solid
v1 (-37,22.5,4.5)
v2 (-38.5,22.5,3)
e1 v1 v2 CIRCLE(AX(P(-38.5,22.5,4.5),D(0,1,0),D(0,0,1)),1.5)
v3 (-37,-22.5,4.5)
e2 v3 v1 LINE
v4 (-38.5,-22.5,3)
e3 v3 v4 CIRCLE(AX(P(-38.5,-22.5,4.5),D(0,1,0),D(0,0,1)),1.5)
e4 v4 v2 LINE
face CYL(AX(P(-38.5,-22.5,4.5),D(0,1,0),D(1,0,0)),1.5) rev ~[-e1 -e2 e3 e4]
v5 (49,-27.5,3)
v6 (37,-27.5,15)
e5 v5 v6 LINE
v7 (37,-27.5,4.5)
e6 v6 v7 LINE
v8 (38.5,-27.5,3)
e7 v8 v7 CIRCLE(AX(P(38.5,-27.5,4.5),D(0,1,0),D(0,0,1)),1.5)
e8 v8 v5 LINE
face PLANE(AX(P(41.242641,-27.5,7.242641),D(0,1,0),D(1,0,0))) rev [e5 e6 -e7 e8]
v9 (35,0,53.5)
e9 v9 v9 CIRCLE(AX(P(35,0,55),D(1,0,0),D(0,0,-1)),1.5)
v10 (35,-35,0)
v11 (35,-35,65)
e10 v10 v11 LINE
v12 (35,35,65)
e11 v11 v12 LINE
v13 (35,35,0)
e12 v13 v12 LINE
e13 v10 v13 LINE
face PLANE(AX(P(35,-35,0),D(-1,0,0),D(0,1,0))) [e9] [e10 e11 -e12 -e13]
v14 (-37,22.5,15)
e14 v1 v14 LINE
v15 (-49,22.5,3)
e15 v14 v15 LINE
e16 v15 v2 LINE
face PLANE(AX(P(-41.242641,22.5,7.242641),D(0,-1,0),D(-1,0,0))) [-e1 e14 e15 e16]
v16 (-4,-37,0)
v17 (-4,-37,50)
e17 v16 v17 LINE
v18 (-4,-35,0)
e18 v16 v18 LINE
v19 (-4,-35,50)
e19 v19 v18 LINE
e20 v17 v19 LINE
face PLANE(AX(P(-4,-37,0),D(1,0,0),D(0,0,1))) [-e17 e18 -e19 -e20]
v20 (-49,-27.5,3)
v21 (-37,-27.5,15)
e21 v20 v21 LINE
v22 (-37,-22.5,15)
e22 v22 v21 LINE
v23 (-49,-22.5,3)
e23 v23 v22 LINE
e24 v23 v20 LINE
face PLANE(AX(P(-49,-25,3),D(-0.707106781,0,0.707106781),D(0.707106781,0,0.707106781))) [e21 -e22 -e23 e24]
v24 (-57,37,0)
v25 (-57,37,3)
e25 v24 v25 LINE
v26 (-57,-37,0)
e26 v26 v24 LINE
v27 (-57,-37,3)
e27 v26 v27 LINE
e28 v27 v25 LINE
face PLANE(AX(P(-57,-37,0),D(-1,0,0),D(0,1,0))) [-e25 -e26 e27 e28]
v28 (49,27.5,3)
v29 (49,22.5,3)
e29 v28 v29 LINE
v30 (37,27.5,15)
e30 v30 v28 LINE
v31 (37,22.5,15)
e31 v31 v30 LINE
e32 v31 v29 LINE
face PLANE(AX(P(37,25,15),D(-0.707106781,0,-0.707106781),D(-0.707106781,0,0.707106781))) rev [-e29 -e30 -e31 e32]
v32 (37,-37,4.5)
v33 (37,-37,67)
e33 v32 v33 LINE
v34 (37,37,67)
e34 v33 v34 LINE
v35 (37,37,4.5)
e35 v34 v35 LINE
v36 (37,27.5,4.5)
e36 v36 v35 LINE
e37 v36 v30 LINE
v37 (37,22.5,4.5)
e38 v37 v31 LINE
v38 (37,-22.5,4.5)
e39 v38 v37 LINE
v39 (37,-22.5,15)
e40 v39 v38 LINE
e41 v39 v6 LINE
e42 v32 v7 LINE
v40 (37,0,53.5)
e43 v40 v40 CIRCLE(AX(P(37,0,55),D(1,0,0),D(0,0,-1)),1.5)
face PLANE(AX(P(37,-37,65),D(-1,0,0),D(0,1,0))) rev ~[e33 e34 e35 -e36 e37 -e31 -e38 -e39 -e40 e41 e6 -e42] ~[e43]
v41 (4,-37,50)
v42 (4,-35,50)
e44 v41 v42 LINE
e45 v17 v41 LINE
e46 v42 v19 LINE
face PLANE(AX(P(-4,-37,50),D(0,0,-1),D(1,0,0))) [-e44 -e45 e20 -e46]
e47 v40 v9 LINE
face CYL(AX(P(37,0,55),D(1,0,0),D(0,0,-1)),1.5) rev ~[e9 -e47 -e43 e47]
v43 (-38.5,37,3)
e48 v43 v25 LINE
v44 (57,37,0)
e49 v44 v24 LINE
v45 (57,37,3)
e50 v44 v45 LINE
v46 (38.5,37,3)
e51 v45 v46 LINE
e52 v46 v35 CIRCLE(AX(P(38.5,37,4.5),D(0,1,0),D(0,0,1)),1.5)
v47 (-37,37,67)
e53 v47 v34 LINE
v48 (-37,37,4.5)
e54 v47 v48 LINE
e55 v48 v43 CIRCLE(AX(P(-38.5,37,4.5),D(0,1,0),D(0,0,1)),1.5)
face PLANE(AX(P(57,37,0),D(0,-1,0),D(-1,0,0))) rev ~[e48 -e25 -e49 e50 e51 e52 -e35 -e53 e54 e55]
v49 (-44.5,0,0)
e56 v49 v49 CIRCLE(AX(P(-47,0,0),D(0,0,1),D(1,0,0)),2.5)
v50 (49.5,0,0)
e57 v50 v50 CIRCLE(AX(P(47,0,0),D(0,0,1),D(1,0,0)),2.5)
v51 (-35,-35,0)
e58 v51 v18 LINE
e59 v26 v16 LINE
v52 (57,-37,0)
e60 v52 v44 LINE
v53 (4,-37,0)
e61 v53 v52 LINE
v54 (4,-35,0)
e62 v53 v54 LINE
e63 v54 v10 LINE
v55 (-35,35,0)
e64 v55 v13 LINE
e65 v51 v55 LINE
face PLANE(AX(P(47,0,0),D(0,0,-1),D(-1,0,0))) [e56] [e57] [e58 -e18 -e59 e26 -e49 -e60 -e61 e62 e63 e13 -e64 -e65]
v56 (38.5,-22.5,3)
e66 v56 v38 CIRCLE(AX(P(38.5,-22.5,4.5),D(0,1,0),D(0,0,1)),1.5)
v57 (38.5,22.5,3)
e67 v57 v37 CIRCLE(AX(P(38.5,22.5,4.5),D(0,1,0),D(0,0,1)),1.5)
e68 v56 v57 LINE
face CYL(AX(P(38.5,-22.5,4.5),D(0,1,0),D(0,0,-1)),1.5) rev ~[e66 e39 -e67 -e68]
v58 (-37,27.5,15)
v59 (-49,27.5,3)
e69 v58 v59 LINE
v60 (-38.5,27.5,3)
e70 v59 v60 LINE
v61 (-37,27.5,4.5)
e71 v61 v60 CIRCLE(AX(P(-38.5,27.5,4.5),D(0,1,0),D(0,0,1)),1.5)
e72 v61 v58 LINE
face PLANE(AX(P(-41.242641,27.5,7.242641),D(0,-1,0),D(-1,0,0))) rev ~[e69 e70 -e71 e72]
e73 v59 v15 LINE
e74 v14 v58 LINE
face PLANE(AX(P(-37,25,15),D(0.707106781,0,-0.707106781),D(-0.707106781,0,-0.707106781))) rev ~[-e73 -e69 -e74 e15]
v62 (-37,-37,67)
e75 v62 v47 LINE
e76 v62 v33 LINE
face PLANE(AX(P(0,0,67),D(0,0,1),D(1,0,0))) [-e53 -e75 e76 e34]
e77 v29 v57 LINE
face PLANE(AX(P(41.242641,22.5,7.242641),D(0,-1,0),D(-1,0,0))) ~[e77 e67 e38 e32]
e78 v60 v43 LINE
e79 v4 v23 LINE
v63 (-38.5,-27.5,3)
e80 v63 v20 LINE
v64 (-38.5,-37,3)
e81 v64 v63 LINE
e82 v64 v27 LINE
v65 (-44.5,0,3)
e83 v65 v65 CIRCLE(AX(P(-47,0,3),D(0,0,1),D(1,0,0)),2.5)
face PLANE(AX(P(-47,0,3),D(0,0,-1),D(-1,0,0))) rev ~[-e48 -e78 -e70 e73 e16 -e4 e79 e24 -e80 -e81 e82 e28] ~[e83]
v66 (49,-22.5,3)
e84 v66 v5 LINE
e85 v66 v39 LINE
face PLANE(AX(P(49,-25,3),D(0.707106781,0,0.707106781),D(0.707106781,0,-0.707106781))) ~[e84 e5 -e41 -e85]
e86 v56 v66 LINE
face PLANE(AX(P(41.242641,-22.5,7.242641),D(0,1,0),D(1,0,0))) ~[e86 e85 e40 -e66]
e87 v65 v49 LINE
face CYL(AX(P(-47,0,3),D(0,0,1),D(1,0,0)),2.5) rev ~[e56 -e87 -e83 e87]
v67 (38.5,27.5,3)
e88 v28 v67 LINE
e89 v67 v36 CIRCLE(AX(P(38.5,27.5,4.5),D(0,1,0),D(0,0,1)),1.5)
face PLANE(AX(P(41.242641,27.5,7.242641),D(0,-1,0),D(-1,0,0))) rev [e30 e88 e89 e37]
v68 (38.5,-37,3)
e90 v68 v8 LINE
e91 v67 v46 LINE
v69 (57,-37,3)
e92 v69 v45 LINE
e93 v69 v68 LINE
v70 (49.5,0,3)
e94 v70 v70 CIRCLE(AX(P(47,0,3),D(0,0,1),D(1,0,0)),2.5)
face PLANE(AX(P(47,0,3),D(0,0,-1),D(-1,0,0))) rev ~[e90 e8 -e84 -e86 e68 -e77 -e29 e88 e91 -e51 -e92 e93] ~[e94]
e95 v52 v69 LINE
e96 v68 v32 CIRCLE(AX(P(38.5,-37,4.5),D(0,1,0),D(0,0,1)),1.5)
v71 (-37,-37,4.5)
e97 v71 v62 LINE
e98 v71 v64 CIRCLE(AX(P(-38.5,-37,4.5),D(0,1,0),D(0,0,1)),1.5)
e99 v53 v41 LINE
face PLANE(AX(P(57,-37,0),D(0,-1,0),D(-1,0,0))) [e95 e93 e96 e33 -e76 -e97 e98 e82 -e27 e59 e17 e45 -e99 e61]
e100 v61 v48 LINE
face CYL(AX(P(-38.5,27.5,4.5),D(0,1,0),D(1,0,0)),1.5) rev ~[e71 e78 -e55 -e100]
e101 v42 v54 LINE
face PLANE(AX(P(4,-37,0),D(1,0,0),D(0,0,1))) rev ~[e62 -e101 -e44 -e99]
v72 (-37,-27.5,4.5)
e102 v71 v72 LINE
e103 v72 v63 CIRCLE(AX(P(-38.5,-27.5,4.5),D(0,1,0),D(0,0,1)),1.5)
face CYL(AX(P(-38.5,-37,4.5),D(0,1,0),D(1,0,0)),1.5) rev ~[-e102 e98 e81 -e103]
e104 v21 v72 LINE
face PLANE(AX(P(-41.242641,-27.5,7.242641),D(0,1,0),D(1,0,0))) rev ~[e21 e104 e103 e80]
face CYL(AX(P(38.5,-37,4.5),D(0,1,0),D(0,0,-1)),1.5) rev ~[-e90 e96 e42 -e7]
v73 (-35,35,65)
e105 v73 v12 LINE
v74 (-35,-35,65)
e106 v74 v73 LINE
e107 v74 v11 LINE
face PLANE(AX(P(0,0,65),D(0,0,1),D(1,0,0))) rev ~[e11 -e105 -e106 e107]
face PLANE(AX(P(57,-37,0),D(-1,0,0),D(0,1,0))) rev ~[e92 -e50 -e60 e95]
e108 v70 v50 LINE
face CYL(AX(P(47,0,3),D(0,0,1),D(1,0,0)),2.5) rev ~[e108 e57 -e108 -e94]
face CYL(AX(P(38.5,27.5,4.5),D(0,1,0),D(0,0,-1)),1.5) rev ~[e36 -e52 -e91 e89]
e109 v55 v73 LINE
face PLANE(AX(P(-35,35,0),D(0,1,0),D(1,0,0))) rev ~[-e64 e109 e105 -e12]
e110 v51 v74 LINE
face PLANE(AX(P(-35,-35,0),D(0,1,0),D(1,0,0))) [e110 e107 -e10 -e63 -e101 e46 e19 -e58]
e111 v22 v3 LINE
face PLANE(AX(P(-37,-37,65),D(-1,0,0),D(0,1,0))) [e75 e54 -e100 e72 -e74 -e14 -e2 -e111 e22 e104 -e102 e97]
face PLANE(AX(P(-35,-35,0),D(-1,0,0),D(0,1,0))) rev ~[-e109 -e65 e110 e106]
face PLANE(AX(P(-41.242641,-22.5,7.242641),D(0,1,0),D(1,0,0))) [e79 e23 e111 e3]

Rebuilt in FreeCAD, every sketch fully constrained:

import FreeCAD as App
import Part
import Sketcher
Q = App.Units.Quantity


def edges_at(feature, points):
    """Names of the edges that pass closest to the given points."""
    edges = feature.Shape.Edges
    near = lambda p: min(range(len(edges)), key=lambda i: edges[i].distToShape(Part.Vertex(*p))[0])
    return sorted({f"Edge{near(p) + 1}" for p in points})


def add_polygon(sketch, points):
    """Adds a closed chain of lines whose ends are joined by coincident constraints."""
    first, n = sketch.GeometryCount, len(points)
    for a, b in zip(points, points[1:] + points[:1]):
        sketch.addGeometry(Part.LineSegment(App.Vector(*a, 0), App.Vector(*b, 0)), False)
    for i in range(n):
        sketch.addConstraint(Sketcher.Constraint("Coincident", first + i, 2, first + (i + 1) % n, 1))

doc = App.newDocument("Part")
body = doc.addObject("PartDesign::Body", "Body")

# Sketch on XY plane
sketch1 = body.newObject("Sketcher::SketchObject", "Sketch")
sketch1.AttachmentSupport = (doc.getObject("XY_Plane"), [""])
sketch1.MapMode = "FlatFace"
add_polygon(sketch1, [(-37, 37), (-37, -37), (37, -37), (37, 37)])  # lines 0-3
add_polygon(sketch1, [(35, -35), (-35, -35), (-35, 35), (35, 35)])  # lines 4-7
sketch1.addConstraint(Sketcher.Constraint("Vertical", 0))
sketch1.addConstraint(Sketcher.Constraint("Horizontal", 1))
sketch1.addConstraint(Sketcher.Constraint("Vertical", 2))
sketch1.addConstraint(Sketcher.Constraint("Horizontal", 3))
sketch1.addConstraint(Sketcher.Constraint("Horizontal", 4))
sketch1.addConstraint(Sketcher.Constraint("Vertical", 5))
sketch1.addConstraint(Sketcher.Constraint("Horizontal", 6))
sketch1.addConstraint(Sketcher.Constraint("Vertical", 7))
sketch1.addConstraint(Sketcher.Constraint("Symmetric", 0, 2, 2, 2, -1, 1))
sketch1.addConstraint(Sketcher.Constraint("Symmetric", 4, 2, 6, 2, -1, 1))
sketch1.addConstraint(Sketcher.Constraint("Equal", 3, 0))
sketch1.addConstraint(Sketcher.Constraint("Equal", 6, 5))
sketch1.addConstraint(Sketcher.Constraint("DistanceX", 1, 1, 1, 2, Q("74 mm")))
sketch1.addConstraint(Sketcher.Constraint("DistanceX", 4, 2, 4, 1, Q("70 mm")))
pad1 = body.newObject("PartDesign::Pad", "Pad")
pad1.Profile = sketch1
pad1.Length = 65

# Sketch on XY plane
sketch2 = body.newObject("Sketcher::SketchObject", "Sketch001")
sketch2.AttachmentSupport = (doc.getObject("XY_Plane"), [""])
sketch2.MapMode = "FlatFace"
sketch2.AttachmentOffset = App.Placement(App.Vector(0, 0, 65), App.Rotation())
add_polygon(sketch2, [(-37, 37), (-37, -37), (37, -37), (37, 37)])  # lines 0-3
sketch2.addConstraint(Sketcher.Constraint("Vertical", 0))
sketch2.addConstraint(Sketcher.Constraint("Horizontal", 1))
sketch2.addConstraint(Sketcher.Constraint("Vertical", 2))
sketch2.addConstraint(Sketcher.Constraint("Horizontal", 3))
sketch2.addConstraint(Sketcher.Constraint("Symmetric", 0, 2, 2, 2, -1, 1))
sketch2.addConstraint(Sketcher.Constraint("Equal", 3, 0))
sketch2.addConstraint(Sketcher.Constraint("DistanceX", 1, 1, 1, 2, Q("74 mm")))
pad2 = body.newObject("PartDesign::Pad", "Pad001")
pad2.Profile = sketch2
pad2.Length = 2

# Sketch on XY plane
sketch3 = body.newObject("Sketcher::SketchObject", "Sketch002")
sketch3.AttachmentSupport = (doc.getObject("XY_Plane"), [""])
sketch3.MapMode = "FlatFace"
add_polygon(sketch3, [(57, 37), (57, -37), (37, -37), (37, 37)])  # lines 0-3
add_polygon(sketch3, [(-37, 37), (-37, -37), (-57, -37), (-57, 37)])  # lines 4-7
sketch3.addConstraint(Sketcher.Constraint("Vertical", 0))
sketch3.addConstraint(Sketcher.Constraint("Horizontal", 1))
sketch3.addConstraint(Sketcher.Constraint("Vertical", 2))
sketch3.addConstraint(Sketcher.Constraint("Horizontal", 3))
sketch3.addConstraint(Sketcher.Constraint("Vertical", 4))
sketch3.addConstraint(Sketcher.Constraint("Horizontal", 5))
sketch3.addConstraint(Sketcher.Constraint("Vertical", 6))
sketch3.addConstraint(Sketcher.Constraint("Horizontal", 7))
sketch3.addConstraint(Sketcher.Constraint("Symmetric", 2, 2, 4, 2, -1, 1))
sketch3.addConstraint(Sketcher.Constraint("Symmetric", 0, 2, 6, 2, -1, 1))
sketch3.addConstraint(Sketcher.Constraint("Horizontal", 1, 2, 4, 2))
sketch3.addConstraint(Sketcher.Constraint("DistanceX", 1, 2, 1, 1, Q("20 mm")))
sketch3.addConstraint(Sketcher.Constraint("DistanceY", 0, 2, 0, 1, Q("74 mm")))
sketch3.addConstraint(Sketcher.Constraint("DistanceX", -1, 1, 0, 2, Q("57 mm")))
pad3 = body.newObject("PartDesign::Pad", "Pad002")
pad3.Profile = sketch3
pad3.Length = 3

# Sketch on XZ plane
sketch4 = body.newObject("Sketcher::SketchObject", "Sketch003")
sketch4.AttachmentSupport = (doc.getObject("XZ_Plane"), [""])
sketch4.MapMode = "FlatFace"
sketch4.AttachmentOffset = App.Placement(App.Vector(0, 0, -25), App.Rotation())
add_polygon(sketch4, [(-49, 3), (-37, 15), (-37, 3)])  # lines 0-2
sketch4.addConstraint(Sketcher.Constraint("Vertical", 1))
sketch4.addConstraint(Sketcher.Constraint("Horizontal", 2))
sketch4.addConstraint(Sketcher.Constraint("Equal", 2, 1))
sketch4.addConstraint(Sketcher.Constraint("DistanceX", 2, 2, 2, 1, Q("12 mm")))
sketch4.addConstraint(Sketcher.Constraint("DistanceX", 0, 2, -1, 1, Q("37 mm")))
sketch4.addConstraint(Sketcher.Constraint("DistanceY", -1, 1, 0, 2, Q("15 mm")))
pad4 = body.newObject("PartDesign::Pad", "Pad003")
pad4.Profile = sketch4
pad4.Length = 5
pad4.Midplane = True

# Sketch on XZ plane
sketch5 = body.newObject("Sketcher::SketchObject", "Sketch004")
sketch5.AttachmentSupport = (doc.getObject("XZ_Plane"), [""])
sketch5.MapMode = "FlatFace"
sketch5.AttachmentOffset = App.Placement(App.Vector(0, 0, 25), App.Rotation())
add_polygon(sketch5, [(-37, 15), (-37, 3), (-49, 3)])  # lines 0-2
sketch5.addConstraint(Sketcher.Constraint("Vertical", 0))
sketch5.addConstraint(Sketcher.Constraint("Horizontal", 1))
sketch5.addConstraint(Sketcher.Constraint("Equal", 1, 0))
sketch5.addConstraint(Sketcher.Constraint("DistanceX", 1, 2, 1, 1, Q("12 mm")))
sketch5.addConstraint(Sketcher.Constraint("DistanceX", 0, 2, -1, 1, Q("37 mm")))
sketch5.addConstraint(Sketcher.Constraint("DistanceY", -1, 1, 0, 2, Q("3 mm")))
pad5 = body.newObject("PartDesign::Pad", "Pad004")
pad5.Profile = sketch5
pad5.Length = 5
pad5.Midplane = True
doc.recompute()

mirrored = body.newObject("PartDesign::Mirrored", "Mirrored")
mirrored.Originals = [pad4, pad5]
mirrored.MirrorPlane = (doc.getObject("YZ_Plane"), [""])
body.Tip = mirrored

# Sketch on XY plane
sketch6 = body.newObject("Sketcher::SketchObject", "Sketch005")
sketch6.AttachmentSupport = (doc.getObject("XY_Plane"), [""])
sketch6.MapMode = "FlatFace"
sketch6.AttachmentOffset = App.Placement(App.Vector(0, 0, 3), App.Rotation())
sketch6.addGeometry(Part.Circle(App.Vector(47, 0, 0), App.Vector(0, 0, 1), 2.5), False)
sketch6.addGeometry(Part.Circle(App.Vector(-47, 0, 0), App.Vector(0, 0, 1), 2.5), False)
sketch6.addConstraint(Sketcher.Constraint("Equal", 0, 1))
sketch6.addConstraint(Sketcher.Constraint("Symmetric", 0, 3, 1, 3, -1, 1))
sketch6.addConstraint(Sketcher.Constraint("PointOnObject", 0, 3, -1))
sketch6.addConstraint(Sketcher.Constraint("Diameter", 0, Q("5 mm")))
sketch6.addConstraint(Sketcher.Constraint("DistanceX", -1, 1, 0, 3, Q("47 mm")))
pocket1 = body.newObject("PartDesign::Pocket", "Pocket")
pocket1.Profile = sketch6
pocket1.Length = 5
doc.recompute()

fillet = body.newObject("PartDesign::Fillet", "Fillet")
fillet.Base = (pocket1, edges_at(pocket1, [
    (37, 0, 3),
    (-37, 32.25, 3),
    (37, -32.25, 3),
    (-37, 0, 3),
    (-37, -32.25, 3),
    (37, 32.25, 3),
]))
fillet.Radius = 1.5

# Sketch on XZ plane
sketch7 = body.newObject("Sketcher::SketchObject", "Sketch006")
sketch7.AttachmentSupport = (doc.getObject("XZ_Plane"), [""])
sketch7.MapMode = "FlatFace"
sketch7.AttachmentOffset = App.Placement(App.Vector(0, 0, 37), App.Rotation())
add_polygon(sketch7, [(-4, 50), (-4, 0), (4, 0), (4, 50)])  # lines 0-3
sketch7.addConstraint(Sketcher.Constraint("Vertical", 0))
sketch7.addConstraint(Sketcher.Constraint("Horizontal", 1))
sketch7.addConstraint(Sketcher.Constraint("Vertical", 2))
sketch7.addConstraint(Sketcher.Constraint("Horizontal", 3))
sketch7.addConstraint(Sketcher.Constraint("Symmetric", 0, 2, 1, 2, -1, 1))
sketch7.addConstraint(Sketcher.Constraint("DistanceX", 1, 1, 1, 2, Q("8 mm")))
sketch7.addConstraint(Sketcher.Constraint("DistanceY", 0, 2, 0, 1, Q("50 mm")))
pocket2 = body.newObject("PartDesign::Pocket", "Pocket001")
pocket2.Profile = sketch7
pocket2.Length = 5

# Sketch on YZ plane
sketch8 = body.newObject("Sketcher::SketchObject", "Sketch007")
sketch8.AttachmentSupport = (doc.getObject("YZ_Plane"), [""])
sketch8.MapMode = "FlatFace"
sketch8.AttachmentOffset = App.Placement(App.Vector(0, 0, 37), App.Rotation())
sketch8.addGeometry(Part.Circle(App.Vector(0, 55, 0), App.Vector(0, 0, 1), 1.5), False)
sketch8.addConstraint(Sketcher.Constraint("PointOnObject", 0, 3, -2))
sketch8.addConstraint(Sketcher.Constraint("Diameter", 0, Q("3 mm")))
sketch8.addConstraint(Sketcher.Constraint("DistanceY", -1, 1, 0, 3, Q("55 mm")))
pocket3 = body.newObject("PartDesign::Pocket", "Pocket002")
pocket3.Profile = sketch8
pocket3.Length = 5

doc.recompute()
